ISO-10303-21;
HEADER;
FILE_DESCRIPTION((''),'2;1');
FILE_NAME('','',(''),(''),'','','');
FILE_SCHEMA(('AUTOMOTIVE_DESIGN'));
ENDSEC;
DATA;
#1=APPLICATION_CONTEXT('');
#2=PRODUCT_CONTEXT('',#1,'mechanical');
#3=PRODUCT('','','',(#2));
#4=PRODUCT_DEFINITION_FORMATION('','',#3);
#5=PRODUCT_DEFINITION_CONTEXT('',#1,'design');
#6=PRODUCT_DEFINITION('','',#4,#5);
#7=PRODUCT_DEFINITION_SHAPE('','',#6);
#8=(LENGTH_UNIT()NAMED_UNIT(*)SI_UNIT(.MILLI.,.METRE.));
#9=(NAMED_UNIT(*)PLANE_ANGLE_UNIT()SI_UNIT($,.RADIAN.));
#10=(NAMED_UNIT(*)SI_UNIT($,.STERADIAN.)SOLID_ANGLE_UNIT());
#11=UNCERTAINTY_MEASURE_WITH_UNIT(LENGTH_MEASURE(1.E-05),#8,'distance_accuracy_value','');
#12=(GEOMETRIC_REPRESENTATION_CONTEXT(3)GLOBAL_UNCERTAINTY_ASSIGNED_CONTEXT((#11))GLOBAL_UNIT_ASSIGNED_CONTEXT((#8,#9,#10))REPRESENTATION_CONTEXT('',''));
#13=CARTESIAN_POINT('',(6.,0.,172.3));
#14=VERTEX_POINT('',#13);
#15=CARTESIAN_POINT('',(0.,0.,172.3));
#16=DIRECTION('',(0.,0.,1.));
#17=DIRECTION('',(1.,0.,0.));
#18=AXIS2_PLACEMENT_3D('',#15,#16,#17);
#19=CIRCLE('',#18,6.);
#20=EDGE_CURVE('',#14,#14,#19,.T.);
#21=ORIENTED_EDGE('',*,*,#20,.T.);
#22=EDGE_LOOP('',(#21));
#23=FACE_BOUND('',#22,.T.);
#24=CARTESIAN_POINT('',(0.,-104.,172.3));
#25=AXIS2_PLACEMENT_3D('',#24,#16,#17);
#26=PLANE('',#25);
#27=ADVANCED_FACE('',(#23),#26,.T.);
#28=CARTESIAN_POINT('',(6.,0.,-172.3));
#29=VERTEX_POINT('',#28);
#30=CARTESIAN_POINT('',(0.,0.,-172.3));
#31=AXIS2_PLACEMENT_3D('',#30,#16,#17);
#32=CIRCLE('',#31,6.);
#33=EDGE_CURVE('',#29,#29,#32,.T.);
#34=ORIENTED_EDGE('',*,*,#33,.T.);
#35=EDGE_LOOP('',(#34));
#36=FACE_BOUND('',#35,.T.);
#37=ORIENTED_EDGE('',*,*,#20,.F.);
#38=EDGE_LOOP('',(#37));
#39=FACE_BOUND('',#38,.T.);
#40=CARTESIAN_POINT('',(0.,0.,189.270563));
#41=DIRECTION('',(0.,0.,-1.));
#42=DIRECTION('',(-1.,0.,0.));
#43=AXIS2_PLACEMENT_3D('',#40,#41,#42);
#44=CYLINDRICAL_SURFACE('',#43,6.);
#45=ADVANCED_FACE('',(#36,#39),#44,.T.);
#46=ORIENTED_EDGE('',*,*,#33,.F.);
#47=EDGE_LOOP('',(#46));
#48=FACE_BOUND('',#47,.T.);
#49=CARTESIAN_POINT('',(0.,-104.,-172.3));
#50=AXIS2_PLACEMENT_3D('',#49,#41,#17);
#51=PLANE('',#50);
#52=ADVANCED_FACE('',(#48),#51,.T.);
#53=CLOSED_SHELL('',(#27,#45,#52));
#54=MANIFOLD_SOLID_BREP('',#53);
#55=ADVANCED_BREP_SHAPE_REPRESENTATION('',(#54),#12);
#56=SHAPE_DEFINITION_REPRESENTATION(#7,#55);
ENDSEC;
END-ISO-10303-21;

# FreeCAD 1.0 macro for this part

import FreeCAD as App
import Part
import Sketcher

doc = App.newDocument("Part")
body = doc.addObject("PartDesign::Body", "Body")

sketch1 = body.newObject("Sketcher::SketchObject", "Sketch")
sketch1.AttachmentSupport = (doc.getObject("XY_Plane"), [""])
sketch1.MapMode = "FlatFace"
sketch1.addGeometry(Part.Circle(App.Vector(0, 0, 0), App.Vector(0, 0, 1), 6), False)
sketch1.addConstraint([
    Sketcher.Constraint("Coincident", 0, 3, -1, 1),
    Sketcher.Constraint("Diameter", 0, 12.0),
])
pad1 = body.newObject("PartDesign::Pad", "Pad")
pad1.Profile = sketch1
pad1.Length = 172.3
body2 = doc.addObject("PartDesign::Body", "Body001")
doc.recompute()

body2.BaseFeature = body
doc.recompute()

mirroring = doc.addObject("Part::Mirroring", "Mirroring")
mirroring.Source = body
mirroring.Base = App.Vector(0, 0, 0)
mirroring.Normal = App.Vector(0, 0, 1)
body3 = doc.addObject("PartDesign::Body", "Body002")
body3.BaseFeature = mirroring
boolean = body2.newObject("PartDesign::Boolean", "Boolean")
boolean.Type = "Fuse"
boolean.addObjects([body3])
doc.recompute()
mirroring.Visibility = False

doc.recompute()
